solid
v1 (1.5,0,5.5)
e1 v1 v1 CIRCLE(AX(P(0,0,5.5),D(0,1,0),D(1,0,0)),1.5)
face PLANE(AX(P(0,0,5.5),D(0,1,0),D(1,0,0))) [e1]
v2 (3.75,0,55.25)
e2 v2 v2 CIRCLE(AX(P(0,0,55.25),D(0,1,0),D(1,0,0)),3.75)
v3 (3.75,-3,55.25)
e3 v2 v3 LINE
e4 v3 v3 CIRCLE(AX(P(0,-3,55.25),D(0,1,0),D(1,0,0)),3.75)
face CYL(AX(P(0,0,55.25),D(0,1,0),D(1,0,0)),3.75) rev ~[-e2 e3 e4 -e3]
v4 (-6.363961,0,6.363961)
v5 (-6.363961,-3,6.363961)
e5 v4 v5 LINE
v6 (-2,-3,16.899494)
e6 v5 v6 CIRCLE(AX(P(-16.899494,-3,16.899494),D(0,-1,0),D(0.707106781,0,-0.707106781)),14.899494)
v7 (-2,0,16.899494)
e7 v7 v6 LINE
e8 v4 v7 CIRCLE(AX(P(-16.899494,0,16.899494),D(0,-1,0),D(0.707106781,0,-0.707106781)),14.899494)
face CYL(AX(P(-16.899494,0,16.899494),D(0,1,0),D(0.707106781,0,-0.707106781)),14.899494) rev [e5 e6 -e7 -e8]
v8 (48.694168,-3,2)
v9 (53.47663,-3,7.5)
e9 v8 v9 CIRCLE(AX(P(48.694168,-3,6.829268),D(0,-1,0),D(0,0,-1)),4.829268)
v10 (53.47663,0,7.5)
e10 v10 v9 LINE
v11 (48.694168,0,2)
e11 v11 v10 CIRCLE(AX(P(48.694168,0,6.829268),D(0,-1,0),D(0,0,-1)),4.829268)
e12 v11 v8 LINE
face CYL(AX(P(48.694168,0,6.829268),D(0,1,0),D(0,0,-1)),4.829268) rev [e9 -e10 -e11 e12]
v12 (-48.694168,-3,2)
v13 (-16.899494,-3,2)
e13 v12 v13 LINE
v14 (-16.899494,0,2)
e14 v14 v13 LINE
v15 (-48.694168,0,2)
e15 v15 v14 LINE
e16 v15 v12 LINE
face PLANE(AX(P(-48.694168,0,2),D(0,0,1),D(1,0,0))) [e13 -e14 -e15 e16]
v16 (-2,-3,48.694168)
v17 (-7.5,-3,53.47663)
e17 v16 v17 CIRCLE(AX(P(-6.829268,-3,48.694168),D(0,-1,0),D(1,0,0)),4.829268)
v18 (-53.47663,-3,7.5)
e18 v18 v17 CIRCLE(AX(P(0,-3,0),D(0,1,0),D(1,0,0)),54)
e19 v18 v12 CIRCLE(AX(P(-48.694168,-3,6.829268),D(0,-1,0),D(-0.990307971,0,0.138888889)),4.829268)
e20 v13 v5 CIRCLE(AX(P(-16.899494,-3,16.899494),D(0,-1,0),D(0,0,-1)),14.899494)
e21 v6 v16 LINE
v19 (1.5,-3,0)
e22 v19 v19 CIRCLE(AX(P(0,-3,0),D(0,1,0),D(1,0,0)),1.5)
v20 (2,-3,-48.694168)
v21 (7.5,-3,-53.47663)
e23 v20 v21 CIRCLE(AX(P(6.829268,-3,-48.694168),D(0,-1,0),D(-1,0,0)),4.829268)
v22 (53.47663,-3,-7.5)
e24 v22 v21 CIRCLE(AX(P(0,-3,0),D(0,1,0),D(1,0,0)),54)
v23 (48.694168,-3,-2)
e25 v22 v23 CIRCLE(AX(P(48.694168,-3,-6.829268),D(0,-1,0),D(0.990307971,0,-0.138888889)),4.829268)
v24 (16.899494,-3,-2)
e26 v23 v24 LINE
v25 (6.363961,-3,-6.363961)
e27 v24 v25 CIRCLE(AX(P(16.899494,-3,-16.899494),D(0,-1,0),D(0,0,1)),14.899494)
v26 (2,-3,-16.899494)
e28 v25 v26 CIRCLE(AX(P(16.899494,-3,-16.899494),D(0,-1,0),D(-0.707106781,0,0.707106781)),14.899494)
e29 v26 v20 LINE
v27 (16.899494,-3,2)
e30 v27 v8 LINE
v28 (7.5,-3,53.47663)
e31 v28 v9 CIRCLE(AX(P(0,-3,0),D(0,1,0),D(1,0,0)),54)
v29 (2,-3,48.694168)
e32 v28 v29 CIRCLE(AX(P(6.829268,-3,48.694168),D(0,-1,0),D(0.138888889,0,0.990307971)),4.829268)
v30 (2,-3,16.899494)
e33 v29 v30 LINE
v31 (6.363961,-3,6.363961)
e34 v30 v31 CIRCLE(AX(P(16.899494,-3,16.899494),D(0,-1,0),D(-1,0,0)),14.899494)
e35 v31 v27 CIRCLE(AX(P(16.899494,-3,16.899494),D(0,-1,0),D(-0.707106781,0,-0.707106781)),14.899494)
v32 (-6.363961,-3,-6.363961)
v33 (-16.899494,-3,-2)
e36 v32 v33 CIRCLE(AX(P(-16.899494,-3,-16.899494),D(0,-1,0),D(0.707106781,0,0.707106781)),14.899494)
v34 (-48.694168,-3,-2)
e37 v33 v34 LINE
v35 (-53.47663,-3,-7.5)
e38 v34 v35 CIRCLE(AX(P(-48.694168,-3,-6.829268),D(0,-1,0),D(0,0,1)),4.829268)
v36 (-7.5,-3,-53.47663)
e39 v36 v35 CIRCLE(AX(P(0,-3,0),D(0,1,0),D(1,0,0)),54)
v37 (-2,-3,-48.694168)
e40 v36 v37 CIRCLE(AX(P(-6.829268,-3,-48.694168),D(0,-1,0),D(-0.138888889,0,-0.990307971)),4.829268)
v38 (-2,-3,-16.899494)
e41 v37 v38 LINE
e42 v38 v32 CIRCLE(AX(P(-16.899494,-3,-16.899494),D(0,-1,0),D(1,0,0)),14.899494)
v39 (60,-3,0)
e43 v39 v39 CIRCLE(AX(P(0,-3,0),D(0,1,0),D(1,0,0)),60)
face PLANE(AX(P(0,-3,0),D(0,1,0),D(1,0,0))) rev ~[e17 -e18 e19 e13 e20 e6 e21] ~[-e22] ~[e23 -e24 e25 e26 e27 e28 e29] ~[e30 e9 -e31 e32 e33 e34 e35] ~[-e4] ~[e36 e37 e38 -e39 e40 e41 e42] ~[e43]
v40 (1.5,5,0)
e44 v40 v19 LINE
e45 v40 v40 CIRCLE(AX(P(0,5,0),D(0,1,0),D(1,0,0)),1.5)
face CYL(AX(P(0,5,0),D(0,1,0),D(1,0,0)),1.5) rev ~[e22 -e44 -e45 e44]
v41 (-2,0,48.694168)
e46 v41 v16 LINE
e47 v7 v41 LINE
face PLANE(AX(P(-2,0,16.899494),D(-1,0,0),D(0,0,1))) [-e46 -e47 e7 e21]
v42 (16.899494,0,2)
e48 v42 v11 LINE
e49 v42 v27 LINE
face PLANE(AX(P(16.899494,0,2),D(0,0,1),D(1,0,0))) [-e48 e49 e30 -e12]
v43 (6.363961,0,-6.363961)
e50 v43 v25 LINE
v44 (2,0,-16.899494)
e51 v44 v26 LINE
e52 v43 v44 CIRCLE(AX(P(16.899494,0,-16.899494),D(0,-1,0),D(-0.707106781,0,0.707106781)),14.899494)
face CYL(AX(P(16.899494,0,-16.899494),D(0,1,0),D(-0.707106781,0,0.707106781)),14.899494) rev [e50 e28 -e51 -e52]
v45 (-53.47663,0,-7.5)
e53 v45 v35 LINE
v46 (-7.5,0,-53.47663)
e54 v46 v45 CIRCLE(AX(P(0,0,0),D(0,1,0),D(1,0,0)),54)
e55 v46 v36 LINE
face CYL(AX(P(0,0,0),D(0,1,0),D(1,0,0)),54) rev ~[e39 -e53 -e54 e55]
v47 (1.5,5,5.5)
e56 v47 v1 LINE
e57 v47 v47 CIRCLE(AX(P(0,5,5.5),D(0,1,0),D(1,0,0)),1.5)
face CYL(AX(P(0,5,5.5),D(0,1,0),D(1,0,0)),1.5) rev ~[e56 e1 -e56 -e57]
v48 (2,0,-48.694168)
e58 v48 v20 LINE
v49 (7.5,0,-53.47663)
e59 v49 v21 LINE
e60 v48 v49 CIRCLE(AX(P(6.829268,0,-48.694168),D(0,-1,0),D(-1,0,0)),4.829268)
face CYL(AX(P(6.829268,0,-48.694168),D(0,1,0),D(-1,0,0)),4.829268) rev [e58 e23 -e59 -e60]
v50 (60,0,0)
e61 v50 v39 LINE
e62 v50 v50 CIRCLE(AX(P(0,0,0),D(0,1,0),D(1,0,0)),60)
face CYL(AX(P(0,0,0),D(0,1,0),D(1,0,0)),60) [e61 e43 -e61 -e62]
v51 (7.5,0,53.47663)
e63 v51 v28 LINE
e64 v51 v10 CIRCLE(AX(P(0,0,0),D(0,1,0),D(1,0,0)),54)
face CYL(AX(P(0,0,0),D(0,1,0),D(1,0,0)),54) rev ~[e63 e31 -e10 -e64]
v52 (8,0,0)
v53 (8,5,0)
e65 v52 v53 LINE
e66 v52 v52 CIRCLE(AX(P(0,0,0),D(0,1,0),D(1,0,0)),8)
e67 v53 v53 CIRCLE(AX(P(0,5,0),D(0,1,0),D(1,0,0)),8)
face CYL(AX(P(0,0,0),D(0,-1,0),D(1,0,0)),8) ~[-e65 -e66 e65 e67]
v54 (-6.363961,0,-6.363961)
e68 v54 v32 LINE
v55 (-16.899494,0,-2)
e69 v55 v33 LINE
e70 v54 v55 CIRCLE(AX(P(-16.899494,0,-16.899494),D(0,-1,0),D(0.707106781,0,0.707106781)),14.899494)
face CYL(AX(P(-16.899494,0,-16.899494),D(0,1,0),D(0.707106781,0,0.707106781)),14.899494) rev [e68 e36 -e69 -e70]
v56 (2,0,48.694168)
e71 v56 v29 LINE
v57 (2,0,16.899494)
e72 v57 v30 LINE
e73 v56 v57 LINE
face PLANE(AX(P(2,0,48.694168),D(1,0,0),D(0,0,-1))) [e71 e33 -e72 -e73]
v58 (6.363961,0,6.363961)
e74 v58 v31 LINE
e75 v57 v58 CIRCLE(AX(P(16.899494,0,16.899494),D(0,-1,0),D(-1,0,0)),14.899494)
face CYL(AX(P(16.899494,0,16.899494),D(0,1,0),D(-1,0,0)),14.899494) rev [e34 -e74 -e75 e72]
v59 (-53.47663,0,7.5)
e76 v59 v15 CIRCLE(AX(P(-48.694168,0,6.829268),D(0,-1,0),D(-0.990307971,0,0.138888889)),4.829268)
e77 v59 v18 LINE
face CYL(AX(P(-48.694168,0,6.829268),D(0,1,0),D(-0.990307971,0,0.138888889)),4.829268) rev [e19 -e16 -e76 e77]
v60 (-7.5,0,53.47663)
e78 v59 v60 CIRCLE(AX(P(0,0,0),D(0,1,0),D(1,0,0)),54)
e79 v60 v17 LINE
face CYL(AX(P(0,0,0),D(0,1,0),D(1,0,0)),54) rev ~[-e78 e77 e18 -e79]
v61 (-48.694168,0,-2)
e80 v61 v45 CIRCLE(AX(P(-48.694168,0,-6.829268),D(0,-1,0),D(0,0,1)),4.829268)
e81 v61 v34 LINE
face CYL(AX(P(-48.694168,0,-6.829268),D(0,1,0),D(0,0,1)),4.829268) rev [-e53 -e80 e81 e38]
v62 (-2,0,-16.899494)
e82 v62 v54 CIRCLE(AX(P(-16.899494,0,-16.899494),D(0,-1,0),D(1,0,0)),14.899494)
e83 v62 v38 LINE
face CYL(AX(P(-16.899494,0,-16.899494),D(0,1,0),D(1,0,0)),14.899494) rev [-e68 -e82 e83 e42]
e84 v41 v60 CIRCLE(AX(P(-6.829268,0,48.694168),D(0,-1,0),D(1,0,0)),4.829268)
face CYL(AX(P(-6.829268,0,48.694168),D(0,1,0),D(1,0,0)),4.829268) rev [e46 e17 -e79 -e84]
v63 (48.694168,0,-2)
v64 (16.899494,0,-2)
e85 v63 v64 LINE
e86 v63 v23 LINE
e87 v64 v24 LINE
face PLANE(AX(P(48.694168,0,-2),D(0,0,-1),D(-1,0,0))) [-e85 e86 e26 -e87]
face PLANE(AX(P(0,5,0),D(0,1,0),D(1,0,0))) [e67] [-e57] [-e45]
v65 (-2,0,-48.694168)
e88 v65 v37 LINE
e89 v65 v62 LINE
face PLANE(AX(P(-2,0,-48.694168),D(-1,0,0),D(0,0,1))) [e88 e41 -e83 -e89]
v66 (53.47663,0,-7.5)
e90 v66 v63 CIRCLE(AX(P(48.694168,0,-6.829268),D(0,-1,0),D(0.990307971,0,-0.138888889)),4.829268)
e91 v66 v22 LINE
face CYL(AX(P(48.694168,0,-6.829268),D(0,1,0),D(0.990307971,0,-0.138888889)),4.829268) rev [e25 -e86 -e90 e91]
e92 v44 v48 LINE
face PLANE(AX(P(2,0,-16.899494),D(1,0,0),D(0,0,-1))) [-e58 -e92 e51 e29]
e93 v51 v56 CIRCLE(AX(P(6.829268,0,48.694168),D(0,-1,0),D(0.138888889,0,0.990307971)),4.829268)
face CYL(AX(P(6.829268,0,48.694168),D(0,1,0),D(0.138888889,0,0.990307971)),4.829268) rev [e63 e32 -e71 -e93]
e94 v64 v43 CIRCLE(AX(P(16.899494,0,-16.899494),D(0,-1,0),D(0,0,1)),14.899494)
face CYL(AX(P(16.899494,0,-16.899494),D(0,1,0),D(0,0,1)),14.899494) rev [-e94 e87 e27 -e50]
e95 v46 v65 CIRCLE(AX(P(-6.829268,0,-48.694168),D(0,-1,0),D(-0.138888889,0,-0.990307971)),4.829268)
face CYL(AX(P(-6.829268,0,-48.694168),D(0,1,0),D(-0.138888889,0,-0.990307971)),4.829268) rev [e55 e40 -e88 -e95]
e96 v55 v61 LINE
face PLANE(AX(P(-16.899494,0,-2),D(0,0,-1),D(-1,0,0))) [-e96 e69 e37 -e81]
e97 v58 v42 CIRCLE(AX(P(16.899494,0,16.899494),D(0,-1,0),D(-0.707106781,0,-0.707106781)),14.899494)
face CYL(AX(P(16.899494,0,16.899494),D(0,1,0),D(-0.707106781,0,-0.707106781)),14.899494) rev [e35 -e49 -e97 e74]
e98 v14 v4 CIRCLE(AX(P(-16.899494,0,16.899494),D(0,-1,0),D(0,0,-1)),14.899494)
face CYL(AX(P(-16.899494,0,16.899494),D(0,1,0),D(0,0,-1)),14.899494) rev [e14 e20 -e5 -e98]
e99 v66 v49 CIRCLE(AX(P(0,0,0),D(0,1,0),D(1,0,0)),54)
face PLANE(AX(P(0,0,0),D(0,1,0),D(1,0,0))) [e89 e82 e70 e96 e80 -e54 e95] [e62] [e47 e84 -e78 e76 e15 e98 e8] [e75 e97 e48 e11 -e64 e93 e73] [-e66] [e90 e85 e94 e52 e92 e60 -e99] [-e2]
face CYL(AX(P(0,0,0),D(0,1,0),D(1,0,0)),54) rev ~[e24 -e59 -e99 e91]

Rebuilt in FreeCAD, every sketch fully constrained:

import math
import FreeCAD as App
import Part
import Sketcher
Q = App.Units.Quantity

doc = App.newDocument("Part")
body = doc.addObject("PartDesign::Body", "Body")

# Sketch on XZ plane
sketch1 = body.newObject("Sketcher::SketchObject", "Sketch")
sketch1.AttachmentSupport = (doc.getObject("XZ_Plane"), [""])
sketch1.MapMode = "FlatFace"
sketch1.addGeometry(Part.Circle(App.Vector(0, 0, 0), App.Vector(0, 0, 1), 60), False)
sketch1.addGeometry(Part.ArcOfCircle(Part.Circle(App.Vector(0, 0, 0), App.Vector(0, 0, 1), 54), math.radians(98), math.radians(172)), False)
sketch1.addGeometry(Part.ArcOfCircle(Part.Circle(App.Vector(-48.7, 6.8, 0), App.Vector(0, 0, 1), 4.8), math.radians(172), math.radians(270)), False)
sketch1.addGeometry(Part.LineSegment(App.Vector(-48.7, 2, 0), App.Vector(-16.9, 2, 0)), False)
sketch1.addGeometry(Part.ArcOfCircle(Part.Circle(App.Vector(-16.9, 16.9, 0), App.Vector(0, 0, 1), 14.9), math.radians(-90), math.radians(-45)), False)
sketch1.addGeometry(Part.ArcOfCircle(Part.Circle(App.Vector(-16.9, 16.9, 0), App.Vector(0, 0, 1), 14.9), math.radians(-45), math.radians(0)), False)
sketch1.addGeometry(Part.LineSegment(App.Vector(-2, 16.9, 0), App.Vector(-2, 48.7, 0)), False)
sketch1.addGeometry(Part.ArcOfCircle(Part.Circle(App.Vector(-6.8, 48.7, 0), App.Vector(0, 0, 1), 4.8), math.radians(0), math.radians(98)), False)
sketch1.addGeometry(Part.ArcOfCircle(Part.Circle(App.Vector(0, 0, 0), App.Vector(0, 0, 1), 54), math.radians(8), math.radians(82)), False)
sketch1.addGeometry(Part.ArcOfCircle(Part.Circle(App.Vector(6.8, 48.7, 0), App.Vector(0, 0, 1), 4.8), math.radians(82), math.radians(180)), False)
sketch1.addGeometry(Part.LineSegment(App.Vector(2, 48.7, 0), App.Vector(2, 16.9, 0)), False)
sketch1.addGeometry(Part.ArcOfCircle(Part.Circle(App.Vector(16.9, 16.9, 0), App.Vector(0, 0, 1), 14.9), math.radians(180), math.radians(225)), False)
sketch1.addGeometry(Part.ArcOfCircle(Part.Circle(App.Vector(16.9, 16.9, 0), App.Vector(0, 0, 1), 14.9), math.radians(-135), math.radians(-90)), False)
sketch1.addGeometry(Part.LineSegment(App.Vector(16.9, 2, 0), App.Vector(48.7, 2, 0)), False)
sketch1.addGeometry(Part.ArcOfCircle(Part.Circle(App.Vector(48.7, 6.8, 0), App.Vector(0, 0, 1), 4.8), math.radians(-90), math.radians(8)), False)
sketch1.addGeometry(Part.ArcOfCircle(Part.Circle(App.Vector(0, 0, 0), App.Vector(0, 0, 1), 54), math.radians(-172), math.radians(-98)), False)
sketch1.addGeometry(Part.ArcOfCircle(Part.Circle(App.Vector(-6.8, -48.7, 0), App.Vector(0, 0, 1), 4.8), math.radians(-98), math.radians(0)), False)
sketch1.addGeometry(Part.LineSegment(App.Vector(-2, -48.7, 0), App.Vector(-2, -16.9, 0)), False)
sketch1.addGeometry(Part.ArcOfCircle(Part.Circle(App.Vector(-16.9, -16.9, 0), App.Vector(0, 0, 1), 14.9), math.radians(0), math.radians(45)), False)
sketch1.addGeometry(Part.ArcOfCircle(Part.Circle(App.Vector(-16.9, -16.9, 0), App.Vector(0, 0, 1), 14.9), math.radians(45), math.radians(90)), False)
sketch1.addGeometry(Part.LineSegment(App.Vector(-16.9, -2, 0), App.Vector(-48.7, -2, 0)), False)
sketch1.addGeometry(Part.ArcOfCircle(Part.Circle(App.Vector(-48.7, -6.8, 0), App.Vector(0, 0, 1), 4.8), math.radians(90), math.radians(188)), False)
sketch1.addGeometry(Part.ArcOfCircle(Part.Circle(App.Vector(0, 0, 0), App.Vector(0, 0, 1), 54), math.radians(-82), math.radians(-8)), False)
sketch1.addGeometry(Part.ArcOfCircle(Part.Circle(App.Vector(48.7, -6.8, 0), App.Vector(0, 0, 1), 4.8), math.radians(-8), math.radians(90)), False)
sketch1.addGeometry(Part.LineSegment(App.Vector(48.7, -2, 0), App.Vector(16.9, -2, 0)), False)
sketch1.addGeometry(Part.ArcOfCircle(Part.Circle(App.Vector(16.9, -16.9, 0), App.Vector(0, 0, 1), 14.9), math.radians(90), math.radians(135)), False)
sketch1.addGeometry(Part.ArcOfCircle(Part.Circle(App.Vector(16.9, -16.9, 0), App.Vector(0, 0, 1), 14.9), math.radians(135), math.radians(180)), False)
sketch1.addGeometry(Part.LineSegment(App.Vector(2, -16.9, 0), App.Vector(2, -48.7, 0)), False)
sketch1.addGeometry(Part.ArcOfCircle(Part.Circle(App.Vector(6.8, -48.7, 0), App.Vector(0, 0, 1), 4.8), math.radians(180), math.radians(278)), False)
sketch1.addConstraint(Sketcher.Constraint("Tangent", 1, 2, 2, 1))
sketch1.addConstraint(Sketcher.Constraint("Tangent", 2, 2, 3, 1))
sketch1.addConstraint(Sketcher.Constraint("Tangent", 3, 2, 4, 1))
sketch1.addConstraint(Sketcher.Constraint("Tangent", 4, 2, 5, 1))
sketch1.addConstraint(Sketcher.Constraint("Tangent", 5, 2, 6, 1))
sketch1.addConstraint(Sketcher.Constraint("Tangent", 6, 2, 7, 1))
sketch1.addConstraint(Sketcher.Constraint("Tangent", 7, 2, 1, 1))
sketch1.addConstraint(Sketcher.Constraint("Tangent", 8, 2, 9, 1))
sketch1.addConstraint(Sketcher.Constraint("Tangent", 9, 2, 10, 1))
sketch1.addConstraint(Sketcher.Constraint("Tangent", 10, 2, 11, 1))
sketch1.addConstraint(Sketcher.Constraint("Tangent", 11, 2, 12, 1))
sketch1.addConstraint(Sketcher.Constraint("Tangent", 12, 2, 13, 1))
sketch1.addConstraint(Sketcher.Constraint("Tangent", 13, 2, 14, 1))
sketch1.addConstraint(Sketcher.Constraint("Tangent", 14, 2, 8, 1))
sketch1.addConstraint(Sketcher.Constraint("Tangent", 15, 2, 16, 1))
sketch1.addConstraint(Sketcher.Constraint("Tangent", 16, 2, 17, 1))
sketch1.addConstraint(Sketcher.Constraint("Tangent", 17, 2, 18, 1))
sketch1.addConstraint(Sketcher.Constraint("Tangent", 18, 2, 19, 1))
sketch1.addConstraint(Sketcher.Constraint("Tangent", 19, 2, 20, 1))
sketch1.addConstraint(Sketcher.Constraint("Tangent", 20, 2, 21, 1))
sketch1.addConstraint(Sketcher.Constraint("Tangent", 21, 2, 15, 1))
sketch1.addConstraint(Sketcher.Constraint("Tangent", 22, 2, 23, 1))
sketch1.addConstraint(Sketcher.Constraint("Tangent", 23, 2, 24, 1))
sketch1.addConstraint(Sketcher.Constraint("Tangent", 24, 2, 25, 1))
sketch1.addConstraint(Sketcher.Constraint("Tangent", 25, 2, 26, 1))
sketch1.addConstraint(Sketcher.Constraint("Tangent", 26, 2, 27, 1))
sketch1.addConstraint(Sketcher.Constraint("Tangent", 27, 2, 28, 1))
sketch1.addConstraint(Sketcher.Constraint("Tangent", 28, 2, 22, 1))
sketch1.addConstraint(Sketcher.Constraint("Horizontal", 3))
sketch1.addConstraint(Sketcher.Constraint("Vertical", 6))
sketch1.addConstraint(Sketcher.Constraint("Vertical", 10))
sketch1.addConstraint(Sketcher.Constraint("Horizontal", 13))
sketch1.addConstraint(Sketcher.Constraint("Vertical", 17))
sketch1.addConstraint(Sketcher.Constraint("Horizontal", 20))
sketch1.addConstraint(Sketcher.Constraint("Horizontal", 24))
sketch1.addConstraint(Sketcher.Constraint("Vertical", 27))
sketch1.addConstraint(Sketcher.Constraint("Coincident", 0, 3, -1, 1))
sketch1.addConstraint(Sketcher.Constraint("Coincident", 1, 3, -1, 1))
sketch1.addConstraint(Sketcher.Constraint("Coincident", 8, 3, -1, 1))
sketch1.addConstraint(Sketcher.Constraint("Coincident", 15, 3, -1, 1))
sketch1.addConstraint(Sketcher.Constraint("Coincident", 22, 3, -1, 1))
sketch1.addConstraint(Sketcher.Constraint("Equal", 4, 5))
sketch1.addConstraint(Sketcher.Constraint("Equal", 2, 7))
sketch1.addConstraint(Sketcher.Constraint("Equal", 1, 8))
sketch1.addConstraint(Sketcher.Constraint("Equal", 7, 9))
sketch1.addConstraint(Sketcher.Constraint("Equal", 5, 11))
sketch1.addConstraint(Sketcher.Constraint("Equal", 11, 12))
sketch1.addConstraint(Sketcher.Constraint("Equal", 9, 14))
sketch1.addConstraint(Sketcher.Constraint("Equal", 8, 15))
sketch1.addConstraint(Sketcher.Constraint("Equal", 14, 16))
sketch1.addConstraint(Sketcher.Constraint("Equal", 12, 18))
sketch1.addConstraint(Sketcher.Constraint("Equal", 18, 19))
sketch1.addConstraint(Sketcher.Constraint("Equal", 16, 21))
sketch1.addConstraint(Sketcher.Constraint("Equal", 15, 22))
sketch1.addConstraint(Sketcher.Constraint("Equal", 21, 23))
sketch1.addConstraint(Sketcher.Constraint("Equal", 19, 25))
sketch1.addConstraint(Sketcher.Constraint("Equal", 25, 26))
sketch1.addConstraint(Sketcher.Constraint("Equal", 23, 28))
sketch1.addConstraint(Sketcher.Constraint("Symmetric", 11, 3, 18, 3, -1, 1))
sketch1.addConstraint(Sketcher.Constraint("Symmetric", 4, 3, 25, 3, -1, 1))
sketch1.addConstraint(Sketcher.Constraint("Symmetric", 4, 3, 11, 3, -2))
sketch1.addConstraint(Sketcher.Constraint("Horizontal", 4, 2, 11, 2))
sketch1.addConstraint(Sketcher.Constraint("Horizontal", 18, 2, 25, 2))
sketch1.addConstraint(Sketcher.Constraint("Vertical", 4, 2, 18, 2))
sketch1.addConstraint(Sketcher.Constraint("Equal", 24, 6))
sketch1.addConstraint(Sketcher.Constraint("Diameter", 0, Q("120 mm")))
sketch1.addConstraint(Sketcher.Constraint("Radius", 1, Q("54 mm")))
sketch1.addConstraint(Sketcher.Constraint("DistanceY", -1, 1, 2, 2, Q("2 mm")))
sketch1.addConstraint(Sketcher.Constraint("DistanceX", 7, 2, 8, 2, Q("15 mm")))
sketch1.addConstraint(Sketcher.Constraint("Radius", 4, Q("14.899494 mm")))
sketch1.addConstraint(Sketcher.Constraint("DistanceX", 4, 2, -1, 1, Q("6.363961 mm")))
pad1 = body.newObject("PartDesign::Pad", "Pad")
pad1.Profile = sketch1
pad1.Length = 3

# Sketch on XZ plane
sketch2 = body.newObject("Sketcher::SketchObject", "Sketch001")
sketch2.AttachmentSupport = (doc.getObject("XZ_Plane"), [""])
sketch2.MapMode = "FlatFace"
sketch2.addGeometry(Part.Circle(App.Vector(0, 0, 0), App.Vector(0, 0, 1), 8), False)
sketch2.addConstraint(Sketcher.Constraint("Coincident", 0, 3, -1, 1))
sketch2.addConstraint(Sketcher.Constraint("Diameter", 0, Q("16 mm")))
pad2 = body.newObject("PartDesign::Pad", "Pad001")
pad2.Profile = sketch2
pad2.Length = 5
pad2.Reversed = True

# Sketch on XZ plane
sketch3 = body.newObject("Sketcher::SketchObject", "Sketch002")
sketch3.AttachmentSupport = (doc.getObject("XZ_Plane"), [""])
sketch3.MapMode = "FlatFace"
sketch3.AttachmentOffset = App.Placement(App.Vector(0, 0, -5), App.Rotation())
sketch3.addGeometry(Part.Circle(App.Vector(0, 0, 0), App.Vector(0, 0, 1), 1.5), False)
sketch3.addConstraint(Sketcher.Constraint("Coincident", 0, 3, -1, 1))
sketch3.addConstraint(Sketcher.Constraint("Diameter", 0, Q("3 mm")))
pocket1 = body.newObject("PartDesign::Pocket", "Pocket")
pocket1.Profile = sketch3
pocket1.Type = "UpToFirst"
pocket1.Reversed = True

# Sketch on XZ plane
sketch4 = body.newObject("Sketcher::SketchObject", "Sketch003")
sketch4.AttachmentSupport = (doc.getObject("XZ_Plane"), [""])
sketch4.MapMode = "FlatFace"
sketch4.addGeometry(Part.Circle(App.Vector(0, 55.2, 0), App.Vector(0, 0, 1), 3.8), False)
sketch4.addConstraint(Sketcher.Constraint("PointOnObject", 0, 3, -2))
sketch4.addConstraint(Sketcher.Constraint("Diameter", 0, Q("7.5 mm")))
sketch4.addConstraint(Sketcher.Constraint("DistanceY", -1, 1, 0, 3, Q("55.25 mm")))
pocket2 = body.newObject("PartDesign::Pocket", "Pocket001")
pocket2.Profile = sketch4
pocket2.Type = "UpToFirst"
pocket2.Reversed = True

# Sketch on XZ plane
sketch5 = body.newObject("Sketcher::SketchObject", "Sketch004")
sketch5.AttachmentSupport = (doc.getObject("XZ_Plane"), [""])
sketch5.MapMode = "FlatFace"
sketch5.AttachmentOffset = App.Placement(App.Vector(0, 0, -5), App.Rotation())
sketch5.addGeometry(Part.Circle(App.Vector(0, 5.5, 0), App.Vector(0, 0, 1), 1.5), False)
sketch5.addConstraint(Sketcher.Constraint("PointOnObject", 0, 3, -2))
sketch5.addConstraint(Sketcher.Constraint("Diameter", 0, Q("3 mm")))
sketch5.addConstraint(Sketcher.Constraint("DistanceY", -1, 1, 0, 3, Q("5.5 mm")))
pocket3 = body.newObject("PartDesign::Pocket", "Pocket002")
pocket3.Profile = sketch5
pocket3.Length = 5
pocket3.Reversed = True

doc.recompute()
